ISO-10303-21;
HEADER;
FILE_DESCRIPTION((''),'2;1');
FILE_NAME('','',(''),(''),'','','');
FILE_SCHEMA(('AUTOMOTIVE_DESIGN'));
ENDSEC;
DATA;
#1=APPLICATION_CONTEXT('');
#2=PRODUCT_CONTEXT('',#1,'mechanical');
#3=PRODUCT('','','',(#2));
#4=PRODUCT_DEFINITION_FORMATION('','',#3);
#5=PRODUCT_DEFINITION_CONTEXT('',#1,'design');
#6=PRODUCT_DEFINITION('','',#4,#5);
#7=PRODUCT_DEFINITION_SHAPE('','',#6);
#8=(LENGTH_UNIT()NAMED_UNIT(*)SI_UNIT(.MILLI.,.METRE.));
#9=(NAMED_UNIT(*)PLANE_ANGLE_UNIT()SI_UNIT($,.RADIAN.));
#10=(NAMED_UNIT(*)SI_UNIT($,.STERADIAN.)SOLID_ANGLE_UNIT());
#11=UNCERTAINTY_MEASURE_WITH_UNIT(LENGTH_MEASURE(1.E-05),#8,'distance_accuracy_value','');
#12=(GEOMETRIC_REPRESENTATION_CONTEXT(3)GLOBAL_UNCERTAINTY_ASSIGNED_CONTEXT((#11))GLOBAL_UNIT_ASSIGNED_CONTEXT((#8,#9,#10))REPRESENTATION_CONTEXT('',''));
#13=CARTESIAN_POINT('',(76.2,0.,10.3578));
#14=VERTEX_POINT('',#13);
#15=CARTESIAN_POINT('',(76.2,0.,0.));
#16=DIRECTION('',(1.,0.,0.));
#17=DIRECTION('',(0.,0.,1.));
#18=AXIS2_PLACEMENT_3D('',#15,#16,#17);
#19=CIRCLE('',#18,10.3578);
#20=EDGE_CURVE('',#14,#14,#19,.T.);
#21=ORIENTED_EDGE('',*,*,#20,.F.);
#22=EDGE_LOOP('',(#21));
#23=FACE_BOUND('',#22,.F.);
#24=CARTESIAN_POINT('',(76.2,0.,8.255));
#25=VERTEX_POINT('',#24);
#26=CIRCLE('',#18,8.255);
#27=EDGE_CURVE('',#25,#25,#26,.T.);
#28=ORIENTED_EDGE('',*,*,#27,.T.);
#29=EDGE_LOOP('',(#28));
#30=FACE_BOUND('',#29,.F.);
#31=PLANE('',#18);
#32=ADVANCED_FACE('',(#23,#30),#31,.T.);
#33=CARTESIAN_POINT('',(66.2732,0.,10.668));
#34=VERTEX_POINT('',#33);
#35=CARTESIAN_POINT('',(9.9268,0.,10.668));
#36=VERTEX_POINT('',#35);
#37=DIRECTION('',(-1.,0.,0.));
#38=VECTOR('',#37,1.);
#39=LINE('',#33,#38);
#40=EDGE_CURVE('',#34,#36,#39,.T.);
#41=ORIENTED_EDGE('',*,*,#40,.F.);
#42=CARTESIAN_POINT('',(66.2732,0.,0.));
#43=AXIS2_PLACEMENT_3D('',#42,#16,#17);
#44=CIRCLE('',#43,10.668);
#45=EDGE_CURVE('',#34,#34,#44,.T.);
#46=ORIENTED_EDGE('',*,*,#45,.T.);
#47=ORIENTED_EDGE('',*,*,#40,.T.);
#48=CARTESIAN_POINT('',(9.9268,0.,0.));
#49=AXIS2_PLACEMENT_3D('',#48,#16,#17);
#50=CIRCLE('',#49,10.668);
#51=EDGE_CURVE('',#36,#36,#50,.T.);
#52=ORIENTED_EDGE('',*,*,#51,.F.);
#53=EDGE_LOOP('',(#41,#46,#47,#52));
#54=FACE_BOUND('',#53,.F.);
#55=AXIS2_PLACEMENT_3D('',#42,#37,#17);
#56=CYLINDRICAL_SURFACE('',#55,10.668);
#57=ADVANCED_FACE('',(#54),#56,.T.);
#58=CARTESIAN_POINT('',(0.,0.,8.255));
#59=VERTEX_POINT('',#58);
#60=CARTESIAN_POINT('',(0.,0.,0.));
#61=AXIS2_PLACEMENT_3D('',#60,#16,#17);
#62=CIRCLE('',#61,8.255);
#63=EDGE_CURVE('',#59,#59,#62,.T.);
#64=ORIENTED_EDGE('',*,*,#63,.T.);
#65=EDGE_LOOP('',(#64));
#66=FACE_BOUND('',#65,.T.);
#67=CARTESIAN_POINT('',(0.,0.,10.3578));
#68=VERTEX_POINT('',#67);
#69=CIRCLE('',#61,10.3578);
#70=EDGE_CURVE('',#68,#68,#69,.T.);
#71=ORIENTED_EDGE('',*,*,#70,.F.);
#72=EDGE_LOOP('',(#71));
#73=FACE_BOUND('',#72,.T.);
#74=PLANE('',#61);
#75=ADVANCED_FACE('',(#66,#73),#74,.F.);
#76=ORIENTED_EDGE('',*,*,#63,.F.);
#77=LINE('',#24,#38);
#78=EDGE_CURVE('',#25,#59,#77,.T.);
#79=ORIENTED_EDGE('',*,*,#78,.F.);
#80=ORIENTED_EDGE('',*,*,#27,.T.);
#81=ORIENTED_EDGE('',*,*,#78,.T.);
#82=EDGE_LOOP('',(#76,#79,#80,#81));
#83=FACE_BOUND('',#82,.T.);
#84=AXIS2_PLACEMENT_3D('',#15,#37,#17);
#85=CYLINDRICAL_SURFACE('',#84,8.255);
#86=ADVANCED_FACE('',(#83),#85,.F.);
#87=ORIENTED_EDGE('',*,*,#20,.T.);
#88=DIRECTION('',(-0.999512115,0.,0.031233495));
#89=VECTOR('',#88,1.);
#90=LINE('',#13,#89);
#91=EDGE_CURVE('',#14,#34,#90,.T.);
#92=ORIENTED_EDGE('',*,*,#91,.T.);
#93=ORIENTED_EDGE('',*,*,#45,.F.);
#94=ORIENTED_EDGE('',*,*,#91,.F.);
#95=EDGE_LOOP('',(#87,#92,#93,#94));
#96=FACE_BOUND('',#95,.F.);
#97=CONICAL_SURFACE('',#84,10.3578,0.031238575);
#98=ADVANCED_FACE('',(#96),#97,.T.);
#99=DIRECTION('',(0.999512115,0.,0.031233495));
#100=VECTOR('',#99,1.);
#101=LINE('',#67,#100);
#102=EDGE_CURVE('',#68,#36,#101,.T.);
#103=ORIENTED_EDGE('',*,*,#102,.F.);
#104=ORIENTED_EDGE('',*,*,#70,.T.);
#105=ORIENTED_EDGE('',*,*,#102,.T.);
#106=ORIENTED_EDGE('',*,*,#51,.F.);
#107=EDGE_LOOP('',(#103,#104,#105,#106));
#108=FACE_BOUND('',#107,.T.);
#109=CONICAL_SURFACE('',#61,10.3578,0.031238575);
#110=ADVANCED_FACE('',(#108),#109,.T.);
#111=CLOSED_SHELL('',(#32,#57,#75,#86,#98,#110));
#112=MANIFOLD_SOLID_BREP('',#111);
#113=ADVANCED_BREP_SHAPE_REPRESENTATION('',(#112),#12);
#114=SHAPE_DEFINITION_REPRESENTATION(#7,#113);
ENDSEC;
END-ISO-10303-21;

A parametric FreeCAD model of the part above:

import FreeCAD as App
import Part
import Sketcher
from FreeCAD import Vector
Q = App.Units.Quantity


def add_polygon(sketch, points):
    """Adds a closed chain of lines whose ends are joined by coincident constraints."""
    first, n = sketch.GeometryCount, len(points)
    for a, b in zip(points, points[1:] + points[:1]):
        sketch.addGeometry(Part.LineSegment(App.Vector(*a, 0), App.Vector(*b, 0)), False)
    for i in range(n):
        sketch.addConstraint(Sketcher.Constraint("Coincident", first + i, 2, first + (i + 1) % n, 1))

doc = App.newDocument("Part")
body = doc.addObject("PartDesign::Body", "Body")

# Sketch on XZ plane
sketch1 = body.newObject("Sketcher::SketchObject", "Sketch")
sketch1.AttachmentSupport = (doc.getObject("XZ_Plane"), [""])
sketch1.MapMode = "FlatFace"
add_polygon(sketch1, [(76.2, 10.4), (76.2, 8.3), (0, 8.3), (0, 10.4), (9.9, 10.7), (66.3, 10.7)])  # lines 0-5
sketch1.addConstraint(Sketcher.Constraint("Vertical", 0))
sketch1.addConstraint(Sketcher.Constraint("Horizontal", 1))
sketch1.addConstraint(Sketcher.Constraint("Vertical", 2))
sketch1.addConstraint(Sketcher.Constraint("Horizontal", 4))
sketch1.addConstraint(Sketcher.Constraint("PointOnObject", 1, 2, -2))
sketch1.addConstraint(Sketcher.Constraint("Horizontal", 2, 2, 5, 2))
sketch1.addConstraint(Sketcher.Constraint("Equal", 3, 5))
sketch1.addConstraint(Sketcher.Constraint("DistanceX", 1, 2, 1, 1, Q("3 in")))
sketch1.addConstraint(Sketcher.Constraint("Angle", 3, Q("1.7898 deg")))
sketch1.addConstraint(Sketcher.Constraint("DistanceY", -1, 1, 3, 2, Q("0.42 in")))
sketch1.addConstraint(Sketcher.Constraint("Distance", 3, Q("0.391 in")))
sketch1.addConstraint(Sketcher.Constraint("DistanceY", -1, 1, 0, 2, Q("0.325 in")))
revolution = body.newObject("PartDesign::Revolution", "Revolution")
revolution.Profile = sketch1
revolution.ReferenceAxis = (sketch1, ["H_Axis"])
revolution.Angle = 360

doc.recompute()
